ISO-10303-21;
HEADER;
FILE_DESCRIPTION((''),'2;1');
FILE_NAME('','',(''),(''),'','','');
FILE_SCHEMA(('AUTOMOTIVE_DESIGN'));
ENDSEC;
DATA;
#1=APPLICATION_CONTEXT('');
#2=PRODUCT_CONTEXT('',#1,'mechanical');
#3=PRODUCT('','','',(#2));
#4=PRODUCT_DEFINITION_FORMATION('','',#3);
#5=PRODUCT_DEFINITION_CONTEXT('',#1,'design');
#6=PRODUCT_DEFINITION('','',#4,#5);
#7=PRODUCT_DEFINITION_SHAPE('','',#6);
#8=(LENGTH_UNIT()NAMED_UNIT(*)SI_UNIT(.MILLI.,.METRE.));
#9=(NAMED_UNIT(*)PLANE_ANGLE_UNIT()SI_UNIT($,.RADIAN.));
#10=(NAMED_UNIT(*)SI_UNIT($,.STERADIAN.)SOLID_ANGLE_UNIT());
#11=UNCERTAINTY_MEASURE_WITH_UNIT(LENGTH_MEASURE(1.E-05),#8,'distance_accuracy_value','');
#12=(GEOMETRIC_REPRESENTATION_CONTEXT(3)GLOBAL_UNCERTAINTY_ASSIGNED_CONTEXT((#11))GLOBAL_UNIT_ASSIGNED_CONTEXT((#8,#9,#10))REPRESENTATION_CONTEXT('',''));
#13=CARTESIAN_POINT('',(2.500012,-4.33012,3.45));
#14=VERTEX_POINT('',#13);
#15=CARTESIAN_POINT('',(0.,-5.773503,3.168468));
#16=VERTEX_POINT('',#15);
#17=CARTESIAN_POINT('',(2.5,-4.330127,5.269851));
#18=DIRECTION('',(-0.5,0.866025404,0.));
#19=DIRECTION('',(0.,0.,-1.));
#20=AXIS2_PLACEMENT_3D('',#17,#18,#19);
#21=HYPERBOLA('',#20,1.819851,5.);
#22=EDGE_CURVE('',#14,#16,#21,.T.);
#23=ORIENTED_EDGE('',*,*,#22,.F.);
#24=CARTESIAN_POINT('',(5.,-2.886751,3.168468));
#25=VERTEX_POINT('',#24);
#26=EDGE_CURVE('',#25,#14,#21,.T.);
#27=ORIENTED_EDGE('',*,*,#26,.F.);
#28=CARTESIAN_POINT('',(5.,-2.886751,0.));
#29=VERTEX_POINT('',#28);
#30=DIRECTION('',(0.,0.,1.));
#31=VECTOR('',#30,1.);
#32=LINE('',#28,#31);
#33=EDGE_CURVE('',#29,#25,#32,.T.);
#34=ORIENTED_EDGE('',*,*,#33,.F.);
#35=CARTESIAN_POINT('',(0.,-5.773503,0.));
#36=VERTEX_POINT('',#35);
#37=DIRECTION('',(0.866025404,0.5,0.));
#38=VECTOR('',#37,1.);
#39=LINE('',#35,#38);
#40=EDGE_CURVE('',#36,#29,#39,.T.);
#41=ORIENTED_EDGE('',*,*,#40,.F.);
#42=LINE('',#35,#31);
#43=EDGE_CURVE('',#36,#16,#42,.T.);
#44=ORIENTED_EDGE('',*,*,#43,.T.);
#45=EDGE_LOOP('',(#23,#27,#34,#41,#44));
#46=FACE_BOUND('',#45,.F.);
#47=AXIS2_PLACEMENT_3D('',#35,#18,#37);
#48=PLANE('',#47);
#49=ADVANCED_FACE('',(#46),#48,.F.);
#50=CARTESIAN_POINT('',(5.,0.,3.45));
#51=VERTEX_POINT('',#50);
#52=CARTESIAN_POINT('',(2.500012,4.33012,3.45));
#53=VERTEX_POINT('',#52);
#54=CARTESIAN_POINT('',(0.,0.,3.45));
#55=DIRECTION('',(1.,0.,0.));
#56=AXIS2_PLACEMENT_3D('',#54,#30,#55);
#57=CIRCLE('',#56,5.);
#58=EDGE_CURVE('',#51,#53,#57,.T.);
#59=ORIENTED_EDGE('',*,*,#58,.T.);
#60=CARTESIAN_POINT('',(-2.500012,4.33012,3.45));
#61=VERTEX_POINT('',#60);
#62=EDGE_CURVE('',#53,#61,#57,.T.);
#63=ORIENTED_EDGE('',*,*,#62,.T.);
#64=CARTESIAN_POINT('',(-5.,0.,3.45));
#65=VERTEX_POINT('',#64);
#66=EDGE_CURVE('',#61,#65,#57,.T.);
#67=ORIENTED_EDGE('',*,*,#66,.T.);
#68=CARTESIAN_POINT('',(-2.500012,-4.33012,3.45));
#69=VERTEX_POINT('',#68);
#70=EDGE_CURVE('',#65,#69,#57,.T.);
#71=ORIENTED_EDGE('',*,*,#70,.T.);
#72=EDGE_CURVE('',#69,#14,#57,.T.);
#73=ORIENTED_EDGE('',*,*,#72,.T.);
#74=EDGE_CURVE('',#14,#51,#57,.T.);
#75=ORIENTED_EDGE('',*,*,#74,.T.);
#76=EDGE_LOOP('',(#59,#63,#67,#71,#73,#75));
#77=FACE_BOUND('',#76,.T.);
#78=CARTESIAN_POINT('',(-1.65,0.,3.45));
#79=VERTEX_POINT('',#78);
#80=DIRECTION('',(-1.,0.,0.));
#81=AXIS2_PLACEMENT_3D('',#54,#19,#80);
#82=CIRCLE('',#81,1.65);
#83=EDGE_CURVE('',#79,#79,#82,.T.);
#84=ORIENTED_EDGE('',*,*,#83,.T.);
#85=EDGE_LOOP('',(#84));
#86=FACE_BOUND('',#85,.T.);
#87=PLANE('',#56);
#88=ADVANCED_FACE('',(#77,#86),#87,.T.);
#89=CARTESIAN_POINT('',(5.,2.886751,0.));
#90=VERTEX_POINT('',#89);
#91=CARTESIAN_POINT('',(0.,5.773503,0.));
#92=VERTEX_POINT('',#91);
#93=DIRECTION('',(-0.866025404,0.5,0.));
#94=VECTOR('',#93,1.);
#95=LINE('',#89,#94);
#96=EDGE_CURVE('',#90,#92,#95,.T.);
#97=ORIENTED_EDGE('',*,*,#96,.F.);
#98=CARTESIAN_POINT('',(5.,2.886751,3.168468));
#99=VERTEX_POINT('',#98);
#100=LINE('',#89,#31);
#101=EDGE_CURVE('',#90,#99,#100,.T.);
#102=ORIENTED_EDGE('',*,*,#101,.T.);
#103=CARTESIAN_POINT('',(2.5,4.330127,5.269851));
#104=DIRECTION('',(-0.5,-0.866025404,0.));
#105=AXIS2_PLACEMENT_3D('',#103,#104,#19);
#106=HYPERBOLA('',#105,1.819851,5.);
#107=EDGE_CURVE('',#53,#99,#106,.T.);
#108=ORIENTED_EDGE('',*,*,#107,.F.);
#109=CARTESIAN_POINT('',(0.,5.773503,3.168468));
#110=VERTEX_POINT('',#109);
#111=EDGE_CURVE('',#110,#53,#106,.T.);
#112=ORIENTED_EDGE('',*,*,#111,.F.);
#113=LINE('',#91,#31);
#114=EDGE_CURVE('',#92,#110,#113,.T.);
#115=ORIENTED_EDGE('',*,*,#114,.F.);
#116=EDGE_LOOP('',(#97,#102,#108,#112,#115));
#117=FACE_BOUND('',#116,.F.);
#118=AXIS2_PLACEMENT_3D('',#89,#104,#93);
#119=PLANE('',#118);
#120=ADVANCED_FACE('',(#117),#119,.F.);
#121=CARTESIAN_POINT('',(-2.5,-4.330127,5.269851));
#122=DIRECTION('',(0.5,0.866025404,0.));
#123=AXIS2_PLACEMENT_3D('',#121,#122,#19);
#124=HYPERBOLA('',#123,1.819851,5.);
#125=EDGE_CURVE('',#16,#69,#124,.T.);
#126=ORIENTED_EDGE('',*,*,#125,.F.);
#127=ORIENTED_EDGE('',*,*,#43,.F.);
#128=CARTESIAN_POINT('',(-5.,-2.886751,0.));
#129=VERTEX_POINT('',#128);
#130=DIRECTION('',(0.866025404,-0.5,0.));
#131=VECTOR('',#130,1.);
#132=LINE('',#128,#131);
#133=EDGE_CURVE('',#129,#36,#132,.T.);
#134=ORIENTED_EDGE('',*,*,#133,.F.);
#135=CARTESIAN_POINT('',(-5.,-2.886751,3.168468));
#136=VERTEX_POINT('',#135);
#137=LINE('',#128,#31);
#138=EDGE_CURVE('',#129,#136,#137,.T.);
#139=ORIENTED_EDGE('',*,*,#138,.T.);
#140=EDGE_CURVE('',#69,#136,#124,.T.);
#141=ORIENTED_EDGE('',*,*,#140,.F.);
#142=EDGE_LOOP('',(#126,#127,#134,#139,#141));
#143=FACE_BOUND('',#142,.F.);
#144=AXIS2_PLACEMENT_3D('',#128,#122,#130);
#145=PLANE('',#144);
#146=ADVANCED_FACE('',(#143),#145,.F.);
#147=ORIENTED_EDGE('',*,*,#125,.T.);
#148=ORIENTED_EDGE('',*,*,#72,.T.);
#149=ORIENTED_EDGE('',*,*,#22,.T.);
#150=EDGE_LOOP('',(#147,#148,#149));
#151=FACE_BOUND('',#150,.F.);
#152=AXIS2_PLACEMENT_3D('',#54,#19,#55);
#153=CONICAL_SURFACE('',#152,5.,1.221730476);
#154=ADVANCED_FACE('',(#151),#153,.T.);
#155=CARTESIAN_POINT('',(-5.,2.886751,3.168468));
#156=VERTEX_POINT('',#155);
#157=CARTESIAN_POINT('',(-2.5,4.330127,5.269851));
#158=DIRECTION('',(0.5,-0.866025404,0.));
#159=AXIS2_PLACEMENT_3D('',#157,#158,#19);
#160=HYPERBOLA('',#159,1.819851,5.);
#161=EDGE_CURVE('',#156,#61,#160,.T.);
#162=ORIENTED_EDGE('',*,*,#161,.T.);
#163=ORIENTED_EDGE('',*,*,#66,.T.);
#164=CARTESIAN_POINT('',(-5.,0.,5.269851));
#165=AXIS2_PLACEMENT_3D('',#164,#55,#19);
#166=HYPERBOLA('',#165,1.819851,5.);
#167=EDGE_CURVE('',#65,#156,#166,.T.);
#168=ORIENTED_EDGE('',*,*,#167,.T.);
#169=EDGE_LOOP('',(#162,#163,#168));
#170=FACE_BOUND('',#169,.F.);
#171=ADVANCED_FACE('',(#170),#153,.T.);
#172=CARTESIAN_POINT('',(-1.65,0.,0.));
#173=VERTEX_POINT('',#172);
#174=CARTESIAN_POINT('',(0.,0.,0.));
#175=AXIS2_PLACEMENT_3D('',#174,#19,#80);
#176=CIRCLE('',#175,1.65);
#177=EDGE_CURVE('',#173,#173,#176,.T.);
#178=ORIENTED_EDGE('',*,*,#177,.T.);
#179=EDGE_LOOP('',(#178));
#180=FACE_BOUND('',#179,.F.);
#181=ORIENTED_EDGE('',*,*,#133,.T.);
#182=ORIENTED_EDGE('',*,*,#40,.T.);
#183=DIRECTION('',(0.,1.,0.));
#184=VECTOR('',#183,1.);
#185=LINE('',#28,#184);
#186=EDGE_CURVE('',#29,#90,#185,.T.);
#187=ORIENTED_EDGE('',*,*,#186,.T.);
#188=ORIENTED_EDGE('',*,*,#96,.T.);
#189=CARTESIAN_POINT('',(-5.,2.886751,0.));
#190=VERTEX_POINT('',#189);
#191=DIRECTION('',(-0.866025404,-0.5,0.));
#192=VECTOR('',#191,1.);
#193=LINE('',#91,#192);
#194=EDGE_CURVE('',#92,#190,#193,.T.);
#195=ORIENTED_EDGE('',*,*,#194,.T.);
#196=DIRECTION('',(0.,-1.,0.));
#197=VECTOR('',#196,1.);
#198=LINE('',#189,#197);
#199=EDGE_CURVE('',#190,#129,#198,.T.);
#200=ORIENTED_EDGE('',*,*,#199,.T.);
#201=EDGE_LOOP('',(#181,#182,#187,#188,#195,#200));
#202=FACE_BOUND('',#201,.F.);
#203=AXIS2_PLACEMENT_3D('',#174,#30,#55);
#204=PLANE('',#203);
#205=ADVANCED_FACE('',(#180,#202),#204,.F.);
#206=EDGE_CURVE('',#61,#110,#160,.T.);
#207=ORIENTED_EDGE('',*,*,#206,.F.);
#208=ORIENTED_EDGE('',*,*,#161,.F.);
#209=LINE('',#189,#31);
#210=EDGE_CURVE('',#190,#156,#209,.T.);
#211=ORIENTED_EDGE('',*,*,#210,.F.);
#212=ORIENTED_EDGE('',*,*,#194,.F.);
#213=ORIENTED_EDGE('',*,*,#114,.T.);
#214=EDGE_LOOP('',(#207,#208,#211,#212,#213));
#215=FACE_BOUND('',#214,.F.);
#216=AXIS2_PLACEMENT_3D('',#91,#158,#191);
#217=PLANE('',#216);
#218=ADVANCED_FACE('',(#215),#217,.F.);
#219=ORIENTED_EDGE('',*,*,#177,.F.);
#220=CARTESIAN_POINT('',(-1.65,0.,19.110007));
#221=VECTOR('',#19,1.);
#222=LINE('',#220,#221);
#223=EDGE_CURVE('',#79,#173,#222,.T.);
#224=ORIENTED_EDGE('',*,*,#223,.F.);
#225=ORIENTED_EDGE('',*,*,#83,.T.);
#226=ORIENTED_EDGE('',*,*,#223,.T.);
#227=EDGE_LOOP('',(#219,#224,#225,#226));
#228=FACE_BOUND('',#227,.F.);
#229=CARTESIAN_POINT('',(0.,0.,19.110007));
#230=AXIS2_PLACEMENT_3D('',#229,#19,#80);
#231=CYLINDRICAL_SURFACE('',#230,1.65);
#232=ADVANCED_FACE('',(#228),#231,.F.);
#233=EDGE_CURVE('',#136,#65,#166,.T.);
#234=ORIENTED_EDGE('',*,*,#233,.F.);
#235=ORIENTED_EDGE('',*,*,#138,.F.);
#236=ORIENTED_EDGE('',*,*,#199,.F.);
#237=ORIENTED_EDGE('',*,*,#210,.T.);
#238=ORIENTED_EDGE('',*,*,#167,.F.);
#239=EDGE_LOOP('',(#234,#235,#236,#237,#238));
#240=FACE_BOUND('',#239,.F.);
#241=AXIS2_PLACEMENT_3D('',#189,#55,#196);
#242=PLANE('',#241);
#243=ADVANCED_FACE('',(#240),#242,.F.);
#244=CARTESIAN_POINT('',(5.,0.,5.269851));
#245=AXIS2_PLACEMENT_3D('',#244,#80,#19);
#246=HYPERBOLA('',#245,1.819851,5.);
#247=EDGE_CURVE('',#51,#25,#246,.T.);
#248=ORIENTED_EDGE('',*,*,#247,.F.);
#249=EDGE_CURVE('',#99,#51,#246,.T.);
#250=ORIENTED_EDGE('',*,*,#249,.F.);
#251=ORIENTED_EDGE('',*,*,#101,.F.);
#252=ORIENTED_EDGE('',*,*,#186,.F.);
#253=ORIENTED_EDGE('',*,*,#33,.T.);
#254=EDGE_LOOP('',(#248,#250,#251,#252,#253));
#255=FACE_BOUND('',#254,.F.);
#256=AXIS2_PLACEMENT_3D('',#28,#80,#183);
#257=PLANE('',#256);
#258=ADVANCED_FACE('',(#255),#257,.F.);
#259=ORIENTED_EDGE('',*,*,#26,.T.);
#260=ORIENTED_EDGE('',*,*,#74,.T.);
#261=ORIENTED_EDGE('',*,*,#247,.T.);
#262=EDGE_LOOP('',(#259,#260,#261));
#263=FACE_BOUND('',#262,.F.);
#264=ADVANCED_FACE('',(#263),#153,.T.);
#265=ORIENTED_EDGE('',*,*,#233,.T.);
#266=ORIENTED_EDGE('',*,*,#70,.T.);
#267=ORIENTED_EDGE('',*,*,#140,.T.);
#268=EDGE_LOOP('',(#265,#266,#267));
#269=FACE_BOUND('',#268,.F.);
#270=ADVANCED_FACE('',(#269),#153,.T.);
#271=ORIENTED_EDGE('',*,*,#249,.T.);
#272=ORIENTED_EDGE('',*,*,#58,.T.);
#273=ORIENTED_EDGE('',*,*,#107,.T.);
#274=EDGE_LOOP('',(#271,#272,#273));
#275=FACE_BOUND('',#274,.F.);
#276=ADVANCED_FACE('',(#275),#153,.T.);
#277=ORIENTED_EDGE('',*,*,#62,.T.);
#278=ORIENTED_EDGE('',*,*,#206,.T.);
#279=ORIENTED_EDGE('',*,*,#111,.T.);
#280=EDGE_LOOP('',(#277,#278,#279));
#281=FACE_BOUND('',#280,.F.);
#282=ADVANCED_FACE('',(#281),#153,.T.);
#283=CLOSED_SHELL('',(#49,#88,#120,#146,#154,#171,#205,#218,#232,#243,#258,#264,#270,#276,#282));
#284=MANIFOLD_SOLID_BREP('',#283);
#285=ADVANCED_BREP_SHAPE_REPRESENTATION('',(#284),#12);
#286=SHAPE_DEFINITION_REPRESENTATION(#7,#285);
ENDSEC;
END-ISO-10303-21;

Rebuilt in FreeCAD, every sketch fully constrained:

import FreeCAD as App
import Part
import Sketcher

V = App.Vector
Q = App.Units.Quantity

doc = App.newDocument("Part")
body = doc.addObject("PartDesign::Body", "Body")

# Sketch on XY plane
sketch1 = body.newObject("Sketcher::SketchObject", "Sketch")
sketch1.AttachmentSupport = (doc.getObject("XY_Plane"), [""])
sketch1.MapMode = "FlatFace"
sketch1.addGeometry(Part.LineSegment(V(5, -3, 0), V(5, 3, 0)), False)
sketch1.addGeometry(Part.LineSegment(V(5, 3, 0), V(0, 6, 0)), False)
sketch1.addGeometry(Part.LineSegment(V(0, 6, 0), V(-5, 3, 0)), False)
sketch1.addGeometry(Part.LineSegment(V(-5, 3, 0), V(-5, -3, 0)), False)
sketch1.addGeometry(Part.LineSegment(V(-5, -3, 0), V(0, -6, 0)), False)
sketch1.addGeometry(Part.LineSegment(V(0, -6, 0), V(5, -3, 0)), False)
sketch1.addConstraint(Sketcher.Constraint("Coincident", 0, 2, 1, 1))
sketch1.addConstraint(Sketcher.Constraint("Coincident", 1, 2, 2, 1))
sketch1.addConstraint(Sketcher.Constraint("Coincident", 2, 2, 3, 1))
sketch1.addConstraint(Sketcher.Constraint("Coincident", 3, 2, 4, 1))
sketch1.addConstraint(Sketcher.Constraint("Coincident", 4, 2, 5, 1))
sketch1.addConstraint(Sketcher.Constraint("Coincident", 5, 2, 0, 1))
sketch1.addConstraint(Sketcher.Constraint("Vertical", 0))
sketch1.addConstraint(Sketcher.Constraint("Vertical", 3))
sketch1.addConstraint(Sketcher.Constraint("Symmetric", 0, 2, 3, 2, -1, 1))
sketch1.addConstraint(Sketcher.Constraint("Symmetric", 1, 2, 4, 2, -1, 1))
sketch1.addConstraint(Sketcher.Constraint("PointOnObject", 1, 2, -2))
sketch1.addConstraint(Sketcher.Constraint("Parallel", 2, 5))
sketch1.addConstraint(Sketcher.Constraint("Horizontal", 0, 2, 2, 2))
sketch1.addConstraint(Sketcher.Constraint("Angle", 1, Q("150 deg")))
sketch1.addConstraint(Sketcher.Constraint("DistanceX", -1, 1, 0, 2, Q("5 mm")))
sketch1.addConstraint(Sketcher.Constraint("DistanceY", 0, 1, 0, 2, Q("5.773503 mm")))
pad1 = body.newObject("PartDesign::Pad", "Pad")
pad1.Profile = sketch1
pad1.Length = 3.45

# Sketch on XZ plane
sketch2 = body.newObject("Sketcher::SketchObject", "Sketch001")
sketch2.AttachmentSupport = (doc.getObject("XZ_Plane"), [""])
sketch2.MapMode = "FlatFace"
sketch2.addGeometry(Part.LineSegment(V(6.9, 3.5, 0), V(5, 3.5, 0)), False)
sketch2.addGeometry(Part.LineSegment(V(5, 3.5, 0), V(6.9, 2.8, 0)), False)
sketch2.addGeometry(Part.LineSegment(V(6.9, 2.8, 0), V(6.9, 3.5, 0)), False)
sketch2.addConstraint(Sketcher.Constraint("Coincident", 0, 2, 1, 1))
sketch2.addConstraint(Sketcher.Constraint("Coincident", 1, 2, 2, 1))
sketch2.addConstraint(Sketcher.Constraint("Coincident", 2, 2, 0, 1))
sketch2.addConstraint(Sketcher.Constraint("Horizontal", 0))
sketch2.addConstraint(Sketcher.Constraint("Vertical", 2))
sketch2.addConstraint(Sketcher.Constraint("Angle", 1, Q("-20 deg")))
sketch2.addConstraint(Sketcher.Constraint("DistanceX", -1, 1, 0, 2, Q("5 mm")))
sketch2.addConstraint(Sketcher.Constraint("DistanceY", -1, 1, 0, 2, Q("3.45 mm")))
sketch2.addConstraint(Sketcher.Constraint("DistanceX", 0, 2, 0, 1, Q("1.920193 mm")))
groove = body.newObject("PartDesign::Groove", "Groove")
groove.Profile = sketch2
groove.ReferenceAxis = (sketch2, ["V_Axis"])
groove.Angle = 360

# Sketch on XY plane
sketch3 = body.newObject("Sketcher::SketchObject", "Sketch002")
sketch3.AttachmentSupport = (doc.getObject("XY_Plane"), [""])
sketch3.MapMode = "FlatFace"
sketch3.AttachmentOffset = App.Placement(V(0, 0, 3.45), App.Rotation())
sketch3.addGeometry(Part.Circle(V(0, 0, 0), V(0, 0, 1), 1.6), False)
sketch3.addConstraint(Sketcher.Constraint("Coincident", 0, 3, -1, 1))
sketch3.addConstraint(Sketcher.Constraint("Diameter", 0, Q("3.3 mm")))
doc.recompute()
hole = body.newObject("PartDesign::Hole", "Hole")
hole.Profile = sketch3
hole.ThreadType = "None"
hole.Diameter = 3.3
hole.DepthType = "ThroughAll"

doc.recompute()
